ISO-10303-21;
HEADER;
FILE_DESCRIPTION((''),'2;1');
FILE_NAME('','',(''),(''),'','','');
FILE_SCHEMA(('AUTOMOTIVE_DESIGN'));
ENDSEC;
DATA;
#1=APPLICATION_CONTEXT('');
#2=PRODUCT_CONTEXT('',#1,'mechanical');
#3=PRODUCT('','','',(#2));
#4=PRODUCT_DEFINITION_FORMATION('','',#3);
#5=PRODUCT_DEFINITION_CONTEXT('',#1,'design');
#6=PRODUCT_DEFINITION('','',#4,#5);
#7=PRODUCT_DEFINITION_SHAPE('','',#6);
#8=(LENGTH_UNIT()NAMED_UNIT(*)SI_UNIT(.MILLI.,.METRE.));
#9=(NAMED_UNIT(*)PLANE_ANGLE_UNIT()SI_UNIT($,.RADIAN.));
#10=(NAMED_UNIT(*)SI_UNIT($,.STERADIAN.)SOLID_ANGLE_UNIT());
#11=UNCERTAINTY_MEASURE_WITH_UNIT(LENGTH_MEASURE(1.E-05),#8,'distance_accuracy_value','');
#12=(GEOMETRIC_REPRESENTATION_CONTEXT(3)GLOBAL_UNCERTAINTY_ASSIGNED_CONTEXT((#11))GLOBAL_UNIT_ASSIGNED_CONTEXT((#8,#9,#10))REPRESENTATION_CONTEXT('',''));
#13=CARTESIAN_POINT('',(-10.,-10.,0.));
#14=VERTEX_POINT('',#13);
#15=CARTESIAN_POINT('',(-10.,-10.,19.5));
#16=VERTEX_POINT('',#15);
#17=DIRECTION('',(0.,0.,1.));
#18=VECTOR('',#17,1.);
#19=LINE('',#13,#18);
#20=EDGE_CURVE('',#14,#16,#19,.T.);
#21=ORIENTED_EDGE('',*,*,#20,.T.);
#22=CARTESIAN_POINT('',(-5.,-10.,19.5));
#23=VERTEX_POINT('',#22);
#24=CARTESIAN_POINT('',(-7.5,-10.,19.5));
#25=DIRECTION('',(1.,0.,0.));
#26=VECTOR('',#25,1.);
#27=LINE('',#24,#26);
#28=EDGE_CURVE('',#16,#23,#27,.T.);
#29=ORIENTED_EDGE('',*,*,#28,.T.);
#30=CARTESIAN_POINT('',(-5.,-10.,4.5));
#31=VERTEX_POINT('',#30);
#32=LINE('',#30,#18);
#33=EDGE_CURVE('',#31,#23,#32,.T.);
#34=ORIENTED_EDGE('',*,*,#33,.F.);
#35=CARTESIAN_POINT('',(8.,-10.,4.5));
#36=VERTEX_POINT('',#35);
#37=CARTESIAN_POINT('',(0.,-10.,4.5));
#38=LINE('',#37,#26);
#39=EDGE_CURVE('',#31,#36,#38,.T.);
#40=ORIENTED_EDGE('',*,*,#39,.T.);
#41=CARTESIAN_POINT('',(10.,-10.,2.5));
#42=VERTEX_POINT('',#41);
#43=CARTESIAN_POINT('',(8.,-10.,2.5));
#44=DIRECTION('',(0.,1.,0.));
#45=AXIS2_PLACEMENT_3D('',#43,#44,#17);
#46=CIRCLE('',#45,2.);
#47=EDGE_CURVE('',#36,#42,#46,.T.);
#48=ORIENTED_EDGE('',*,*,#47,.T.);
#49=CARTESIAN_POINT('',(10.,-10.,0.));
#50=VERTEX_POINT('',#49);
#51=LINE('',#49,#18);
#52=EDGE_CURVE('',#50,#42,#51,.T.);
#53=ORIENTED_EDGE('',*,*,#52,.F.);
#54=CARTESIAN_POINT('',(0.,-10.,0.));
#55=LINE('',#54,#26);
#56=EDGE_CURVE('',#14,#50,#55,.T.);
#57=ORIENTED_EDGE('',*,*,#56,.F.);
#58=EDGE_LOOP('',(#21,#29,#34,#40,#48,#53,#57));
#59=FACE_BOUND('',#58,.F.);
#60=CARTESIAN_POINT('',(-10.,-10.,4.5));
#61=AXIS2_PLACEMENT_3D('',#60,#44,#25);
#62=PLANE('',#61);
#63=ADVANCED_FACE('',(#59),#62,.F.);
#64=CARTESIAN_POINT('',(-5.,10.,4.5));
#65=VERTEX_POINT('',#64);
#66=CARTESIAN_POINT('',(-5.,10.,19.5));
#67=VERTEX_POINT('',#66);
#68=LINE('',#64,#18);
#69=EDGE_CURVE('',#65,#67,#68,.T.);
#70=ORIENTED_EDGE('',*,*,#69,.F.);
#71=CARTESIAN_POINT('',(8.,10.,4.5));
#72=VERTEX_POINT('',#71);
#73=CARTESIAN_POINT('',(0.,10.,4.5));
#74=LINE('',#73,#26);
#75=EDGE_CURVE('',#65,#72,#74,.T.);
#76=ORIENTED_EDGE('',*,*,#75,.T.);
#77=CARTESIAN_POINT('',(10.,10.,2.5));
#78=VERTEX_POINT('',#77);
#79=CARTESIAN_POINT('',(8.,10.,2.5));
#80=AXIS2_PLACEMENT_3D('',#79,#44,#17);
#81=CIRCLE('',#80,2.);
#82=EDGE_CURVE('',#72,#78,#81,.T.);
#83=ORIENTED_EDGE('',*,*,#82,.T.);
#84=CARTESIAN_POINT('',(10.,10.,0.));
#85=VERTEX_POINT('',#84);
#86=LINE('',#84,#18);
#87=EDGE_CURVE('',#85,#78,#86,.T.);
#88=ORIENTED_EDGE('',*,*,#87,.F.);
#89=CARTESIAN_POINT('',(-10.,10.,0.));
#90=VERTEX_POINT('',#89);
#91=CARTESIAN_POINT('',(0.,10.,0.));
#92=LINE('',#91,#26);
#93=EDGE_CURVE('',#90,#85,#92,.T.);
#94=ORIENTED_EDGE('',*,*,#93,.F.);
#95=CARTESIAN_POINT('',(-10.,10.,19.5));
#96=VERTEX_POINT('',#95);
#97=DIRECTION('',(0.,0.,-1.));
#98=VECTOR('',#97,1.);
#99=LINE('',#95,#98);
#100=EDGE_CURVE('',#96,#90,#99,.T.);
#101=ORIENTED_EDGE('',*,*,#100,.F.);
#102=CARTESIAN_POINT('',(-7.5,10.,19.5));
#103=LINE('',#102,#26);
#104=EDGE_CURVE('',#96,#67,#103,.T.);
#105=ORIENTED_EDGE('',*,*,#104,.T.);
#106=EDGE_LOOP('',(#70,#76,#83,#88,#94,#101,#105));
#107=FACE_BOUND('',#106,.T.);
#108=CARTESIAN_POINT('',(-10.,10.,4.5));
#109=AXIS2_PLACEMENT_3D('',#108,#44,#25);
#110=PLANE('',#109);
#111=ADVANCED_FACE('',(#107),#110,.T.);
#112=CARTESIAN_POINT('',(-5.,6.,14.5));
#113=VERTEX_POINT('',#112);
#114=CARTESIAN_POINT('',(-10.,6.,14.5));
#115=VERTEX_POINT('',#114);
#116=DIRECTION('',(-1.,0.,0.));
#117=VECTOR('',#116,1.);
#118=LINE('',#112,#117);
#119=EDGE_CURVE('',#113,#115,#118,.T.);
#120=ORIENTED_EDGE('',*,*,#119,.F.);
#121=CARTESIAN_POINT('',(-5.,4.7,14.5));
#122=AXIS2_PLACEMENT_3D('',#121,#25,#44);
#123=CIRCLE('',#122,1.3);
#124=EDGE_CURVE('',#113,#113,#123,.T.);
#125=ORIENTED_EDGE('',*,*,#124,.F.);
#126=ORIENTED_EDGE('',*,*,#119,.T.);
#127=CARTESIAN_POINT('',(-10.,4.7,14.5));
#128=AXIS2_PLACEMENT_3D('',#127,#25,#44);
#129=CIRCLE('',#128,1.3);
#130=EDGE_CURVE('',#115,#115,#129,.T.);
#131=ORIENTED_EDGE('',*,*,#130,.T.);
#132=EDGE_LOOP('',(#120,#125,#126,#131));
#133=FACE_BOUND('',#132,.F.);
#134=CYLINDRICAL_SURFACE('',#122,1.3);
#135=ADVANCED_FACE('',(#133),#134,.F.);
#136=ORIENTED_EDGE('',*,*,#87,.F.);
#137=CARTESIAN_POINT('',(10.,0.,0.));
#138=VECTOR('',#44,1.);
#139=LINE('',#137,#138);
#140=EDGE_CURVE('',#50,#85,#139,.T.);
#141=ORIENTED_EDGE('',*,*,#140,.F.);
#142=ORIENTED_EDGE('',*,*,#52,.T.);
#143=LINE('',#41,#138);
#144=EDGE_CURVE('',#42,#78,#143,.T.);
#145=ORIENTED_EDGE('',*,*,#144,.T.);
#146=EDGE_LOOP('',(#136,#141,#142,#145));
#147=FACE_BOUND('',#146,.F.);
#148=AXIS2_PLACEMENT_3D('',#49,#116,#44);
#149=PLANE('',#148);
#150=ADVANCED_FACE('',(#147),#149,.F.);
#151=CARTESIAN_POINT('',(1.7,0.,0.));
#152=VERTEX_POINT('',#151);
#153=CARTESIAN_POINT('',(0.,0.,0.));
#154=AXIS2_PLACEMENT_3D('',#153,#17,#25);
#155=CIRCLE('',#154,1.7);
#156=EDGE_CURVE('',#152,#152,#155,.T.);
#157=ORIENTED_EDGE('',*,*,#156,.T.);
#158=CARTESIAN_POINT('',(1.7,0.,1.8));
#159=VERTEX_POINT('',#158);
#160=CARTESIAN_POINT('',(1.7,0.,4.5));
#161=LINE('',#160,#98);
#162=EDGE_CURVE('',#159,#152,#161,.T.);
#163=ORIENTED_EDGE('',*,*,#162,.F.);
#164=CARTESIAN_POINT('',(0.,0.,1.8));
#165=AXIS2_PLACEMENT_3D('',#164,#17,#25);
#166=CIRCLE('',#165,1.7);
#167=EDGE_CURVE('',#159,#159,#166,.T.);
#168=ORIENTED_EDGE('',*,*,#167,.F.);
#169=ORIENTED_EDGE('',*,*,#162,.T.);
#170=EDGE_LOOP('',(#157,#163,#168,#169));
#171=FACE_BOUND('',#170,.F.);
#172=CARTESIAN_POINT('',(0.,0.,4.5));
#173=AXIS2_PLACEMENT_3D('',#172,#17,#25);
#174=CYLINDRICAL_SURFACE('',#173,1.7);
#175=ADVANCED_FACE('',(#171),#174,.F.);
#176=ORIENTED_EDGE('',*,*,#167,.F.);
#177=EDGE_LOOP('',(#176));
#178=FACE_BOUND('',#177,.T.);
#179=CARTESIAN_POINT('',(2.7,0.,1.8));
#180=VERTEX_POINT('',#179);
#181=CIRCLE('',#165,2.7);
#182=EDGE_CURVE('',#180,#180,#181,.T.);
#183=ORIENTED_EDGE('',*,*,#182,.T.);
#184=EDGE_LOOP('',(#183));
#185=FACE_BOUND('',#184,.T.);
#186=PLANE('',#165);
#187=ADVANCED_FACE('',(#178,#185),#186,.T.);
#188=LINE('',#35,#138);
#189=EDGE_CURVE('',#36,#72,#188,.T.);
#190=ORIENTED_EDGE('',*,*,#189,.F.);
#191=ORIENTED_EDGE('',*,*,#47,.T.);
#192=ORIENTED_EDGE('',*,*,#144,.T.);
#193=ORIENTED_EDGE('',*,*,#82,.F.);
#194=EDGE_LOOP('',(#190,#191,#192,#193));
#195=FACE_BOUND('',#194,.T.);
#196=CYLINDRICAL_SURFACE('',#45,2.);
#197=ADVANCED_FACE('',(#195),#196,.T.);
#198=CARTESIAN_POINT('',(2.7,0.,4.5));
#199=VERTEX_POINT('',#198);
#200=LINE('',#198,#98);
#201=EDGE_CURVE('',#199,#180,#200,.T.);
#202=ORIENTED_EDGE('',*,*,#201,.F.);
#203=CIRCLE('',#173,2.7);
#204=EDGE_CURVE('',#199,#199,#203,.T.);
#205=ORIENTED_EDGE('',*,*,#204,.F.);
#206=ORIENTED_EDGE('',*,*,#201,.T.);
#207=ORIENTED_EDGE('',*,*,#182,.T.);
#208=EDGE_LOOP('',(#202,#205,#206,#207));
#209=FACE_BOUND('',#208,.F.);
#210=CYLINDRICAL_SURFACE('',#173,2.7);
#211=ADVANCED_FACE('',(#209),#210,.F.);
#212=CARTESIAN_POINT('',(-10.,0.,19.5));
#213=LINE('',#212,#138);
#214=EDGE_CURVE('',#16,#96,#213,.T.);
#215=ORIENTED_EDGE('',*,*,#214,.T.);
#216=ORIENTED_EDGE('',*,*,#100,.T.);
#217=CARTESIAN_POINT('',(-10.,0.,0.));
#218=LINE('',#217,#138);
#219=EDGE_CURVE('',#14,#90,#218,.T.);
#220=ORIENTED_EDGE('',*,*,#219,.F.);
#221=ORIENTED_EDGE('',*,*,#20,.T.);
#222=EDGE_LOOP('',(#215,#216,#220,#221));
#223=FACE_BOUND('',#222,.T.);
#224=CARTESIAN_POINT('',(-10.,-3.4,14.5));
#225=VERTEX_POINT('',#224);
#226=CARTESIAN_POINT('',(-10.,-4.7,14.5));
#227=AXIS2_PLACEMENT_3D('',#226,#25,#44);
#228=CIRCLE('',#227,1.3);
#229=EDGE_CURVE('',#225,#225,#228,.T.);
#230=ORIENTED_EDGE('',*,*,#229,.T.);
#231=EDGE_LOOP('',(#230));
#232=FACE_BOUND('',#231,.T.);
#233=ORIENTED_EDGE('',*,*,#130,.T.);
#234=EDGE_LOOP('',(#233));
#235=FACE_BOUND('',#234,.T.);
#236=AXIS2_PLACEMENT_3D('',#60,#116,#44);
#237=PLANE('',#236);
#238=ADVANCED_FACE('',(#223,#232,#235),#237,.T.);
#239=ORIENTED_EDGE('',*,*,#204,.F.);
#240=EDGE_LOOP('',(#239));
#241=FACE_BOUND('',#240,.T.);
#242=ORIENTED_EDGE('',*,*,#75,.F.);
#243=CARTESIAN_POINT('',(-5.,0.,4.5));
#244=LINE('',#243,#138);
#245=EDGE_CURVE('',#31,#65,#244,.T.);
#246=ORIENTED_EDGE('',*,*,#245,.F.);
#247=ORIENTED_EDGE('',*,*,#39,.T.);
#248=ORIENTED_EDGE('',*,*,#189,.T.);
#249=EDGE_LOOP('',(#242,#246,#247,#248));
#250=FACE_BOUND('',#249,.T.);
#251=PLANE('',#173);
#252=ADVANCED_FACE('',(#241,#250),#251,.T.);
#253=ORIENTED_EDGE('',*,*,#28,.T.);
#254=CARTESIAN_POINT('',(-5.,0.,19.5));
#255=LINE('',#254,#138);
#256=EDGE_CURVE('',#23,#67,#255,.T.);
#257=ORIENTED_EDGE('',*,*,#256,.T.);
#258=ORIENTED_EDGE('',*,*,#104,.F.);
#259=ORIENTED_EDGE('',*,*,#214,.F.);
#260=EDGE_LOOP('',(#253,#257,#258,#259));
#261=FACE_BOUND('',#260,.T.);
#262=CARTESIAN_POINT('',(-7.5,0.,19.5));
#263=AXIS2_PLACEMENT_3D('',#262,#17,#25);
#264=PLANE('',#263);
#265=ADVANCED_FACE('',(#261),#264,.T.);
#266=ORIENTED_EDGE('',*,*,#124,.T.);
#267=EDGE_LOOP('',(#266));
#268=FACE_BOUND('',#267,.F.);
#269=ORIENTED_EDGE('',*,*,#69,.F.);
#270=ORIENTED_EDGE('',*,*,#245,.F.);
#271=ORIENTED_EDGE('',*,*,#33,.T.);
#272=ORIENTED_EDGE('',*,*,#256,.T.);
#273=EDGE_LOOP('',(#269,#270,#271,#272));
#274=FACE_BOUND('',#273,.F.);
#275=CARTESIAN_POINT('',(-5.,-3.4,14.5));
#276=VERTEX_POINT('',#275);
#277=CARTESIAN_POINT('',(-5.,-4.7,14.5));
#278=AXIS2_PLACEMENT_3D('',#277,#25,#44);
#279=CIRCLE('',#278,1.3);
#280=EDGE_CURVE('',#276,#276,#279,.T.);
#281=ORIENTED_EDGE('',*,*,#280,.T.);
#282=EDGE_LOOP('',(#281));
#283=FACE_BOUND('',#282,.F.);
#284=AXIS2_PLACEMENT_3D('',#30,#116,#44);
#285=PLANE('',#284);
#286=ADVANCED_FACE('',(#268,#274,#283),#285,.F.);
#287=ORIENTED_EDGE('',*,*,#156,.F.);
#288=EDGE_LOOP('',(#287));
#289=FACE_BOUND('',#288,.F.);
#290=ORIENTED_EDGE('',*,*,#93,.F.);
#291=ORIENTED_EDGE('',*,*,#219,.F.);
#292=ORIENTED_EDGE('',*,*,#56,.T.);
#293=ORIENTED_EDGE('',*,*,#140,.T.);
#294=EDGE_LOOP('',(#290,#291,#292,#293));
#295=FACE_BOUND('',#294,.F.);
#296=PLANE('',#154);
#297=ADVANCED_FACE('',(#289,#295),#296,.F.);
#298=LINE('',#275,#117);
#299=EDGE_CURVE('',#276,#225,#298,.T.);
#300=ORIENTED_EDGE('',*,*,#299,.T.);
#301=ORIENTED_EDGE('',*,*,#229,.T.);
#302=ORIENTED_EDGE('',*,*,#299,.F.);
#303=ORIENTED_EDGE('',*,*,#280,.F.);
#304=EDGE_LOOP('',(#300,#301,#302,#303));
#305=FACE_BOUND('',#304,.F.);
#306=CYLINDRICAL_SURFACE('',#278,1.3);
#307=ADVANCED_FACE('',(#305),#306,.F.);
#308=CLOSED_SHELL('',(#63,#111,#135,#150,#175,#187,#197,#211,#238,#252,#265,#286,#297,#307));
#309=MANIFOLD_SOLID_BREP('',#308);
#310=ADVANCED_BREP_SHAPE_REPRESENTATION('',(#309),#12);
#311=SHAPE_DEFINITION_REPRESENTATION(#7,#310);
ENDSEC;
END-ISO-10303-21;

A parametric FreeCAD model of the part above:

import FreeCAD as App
import Part
import Sketcher
Q = App.Units.Quantity


def edges_at(feature, points):
    """Names of the edges that pass closest to the given points."""
    edges = feature.Shape.Edges
    near = lambda p: min(range(len(edges)), key=lambda i: edges[i].distToShape(Part.Vertex(*p))[0])
    return sorted({f"Edge{near(p) + 1}" for p in points})

doc = App.newDocument("Part")
body = doc.addObject("PartDesign::Body", "Body")

# Sketch on XY plane
sketch1 = body.newObject("Sketcher::SketchObject", "Sketch")
sketch1.AttachmentSupport = (doc.getObject("XY_Plane"), [""])
sketch1.MapMode = "FlatFace"
sketch1.addGeometry([
    Part.LineSegment(App.Vector(-10, 10, 0), App.Vector(-10, -10, 0)),
    Part.LineSegment(App.Vector(-10, -10, 0), App.Vector(10, -10, 0)),
    Part.LineSegment(App.Vector(10, -10, 0), App.Vector(10, 10, 0)),
    Part.LineSegment(App.Vector(10, 10, 0), App.Vector(-10, 10, 0)),
], False)
sketch1.addConstraint([
    Sketcher.Constraint("Coincident", 0, 2, 1, 1),
    Sketcher.Constraint("Coincident", 1, 2, 2, 1),
    Sketcher.Constraint("Coincident", 2, 2, 3, 1),
    Sketcher.Constraint("Coincident", 3, 2, 0, 1),
    Sketcher.Constraint("Vertical", 0),
    Sketcher.Constraint("Horizontal", 1),
    Sketcher.Constraint("Vertical", 2),
    Sketcher.Constraint("Horizontal", 3),
    Sketcher.Constraint("Symmetric", 0, 2, 2, 2, -1, 1),
    Sketcher.Constraint("Equal", 3, 0),
    Sketcher.Constraint("DistanceX", 1, 1, 1, 2, Q("20 mm")),
])
pad1 = body.newObject("PartDesign::Pad", "Pad")
pad1.Profile = sketch1
pad1.Length = 4.5

# Sketch on XY plane
sketch2 = body.newObject("Sketcher::SketchObject", "Sketch001")
sketch2.AttachmentSupport = (doc.getObject("XY_Plane"), [""])
sketch2.MapMode = "FlatFace"
sketch2.AttachmentOffset = App.Placement(App.Vector(0, 0, 4.5), App.Rotation())
sketch2.addGeometry(Part.Circle(App.Vector(0, 0, 0), App.Vector(0, 0, 1), 1.7), False)
sketch2.addConstraint([
    Sketcher.Constraint("Coincident", 0, 3, -1, 1),
    Sketcher.Constraint("Diameter", 0, Q("3.4 mm")),
])
pocket1 = body.newObject("PartDesign::Pocket", "Pocket")
pocket1.Profile = sketch2
pocket1.Length = 5

# Sketch on XY plane
sketch3 = body.newObject("Sketcher::SketchObject", "Sketch002")
sketch3.AttachmentSupport = (doc.getObject("XY_Plane"), [""])
sketch3.MapMode = "FlatFace"
sketch3.AttachmentOffset = App.Placement(App.Vector(0, 0, 4.5), App.Rotation())
sketch3.addGeometry(Part.Circle(App.Vector(0, 0, 0), App.Vector(0, 0, 1), 2.7), False)
sketch3.addConstraint([
    Sketcher.Constraint("Coincident", 0, 3, -1, 1),
    Sketcher.Constraint("Diameter", 0, Q("5.4 mm")),
])
pocket2 = body.newObject("PartDesign::Pocket", "Pocket001")
pocket2.Profile = sketch3
pocket2.Length = 2.7

# Sketch on XY plane
sketch4 = body.newObject("Sketcher::SketchObject", "Sketch003")
sketch4.AttachmentSupport = (doc.getObject("XY_Plane"), [""])
sketch4.MapMode = "FlatFace"
sketch4.AttachmentOffset = App.Placement(App.Vector(0, 0, 4.5), App.Rotation())
sketch4.addGeometry([
    Part.LineSegment(App.Vector(-10, 10, 0), App.Vector(-10, -10, 0)),
    Part.LineSegment(App.Vector(-10, -10, 0), App.Vector(-5, -10, 0)),
    Part.LineSegment(App.Vector(-5, -10, 0), App.Vector(-5, 10, 0)),
    Part.LineSegment(App.Vector(-5, 10, 0), App.Vector(-10, 10, 0)),
], False)
sketch4.addConstraint([
    Sketcher.Constraint("Coincident", 0, 2, 1, 1),
    Sketcher.Constraint("Coincident", 1, 2, 2, 1),
    Sketcher.Constraint("Coincident", 2, 2, 3, 1),
    Sketcher.Constraint("Coincident", 3, 2, 0, 1),
    Sketcher.Constraint("Vertical", 0),
    Sketcher.Constraint("Horizontal", 1),
    Sketcher.Constraint("Vertical", 2),
    Sketcher.Constraint("Horizontal", 3),
    Sketcher.Constraint("DistanceX", 1, 1, 1, 2, Q("5 mm")),
    Sketcher.Constraint("DistanceY", 0, 2, 0, 1, Q("20 mm")),
    Sketcher.Constraint("DistanceX", 0, 2, -1, 1, Q("10 mm")),
    Sketcher.Constraint("DistanceY", 0, 2, -1, 1, Q("10 mm")),
])
pad2 = body.newObject("PartDesign::Pad", "Pad001")
pad2.Profile = sketch4
pad2.Length = 15

# Sketch on YZ plane
sketch5 = body.newObject("Sketcher::SketchObject", "Sketch004")
sketch5.AttachmentSupport = (doc.getObject("YZ_Plane"), [""])
sketch5.MapMode = "FlatFace"
sketch5.AttachmentOffset = App.Placement(App.Vector(0, 0, -5), App.Rotation())
sketch5.addGeometry([
    Part.Circle(App.Vector(-4.7, 14.5, 0), App.Vector(0, 0, 1), 1.3),
    Part.Circle(App.Vector(4.7, 14.5, 0), App.Vector(0, 0, 1), 1.3),
], False)
sketch5.addConstraint([
    Sketcher.Constraint("Equal", 0, 1),
    Sketcher.Constraint("Symmetric", 0, 3, 1, 3, -2),
    Sketcher.Constraint("Diameter", 0, Q("2.6 mm")),
    Sketcher.Constraint("DistanceX", 0, 3, -1, 1, Q("4.7 mm")),
    Sketcher.Constraint("DistanceY", -1, 1, 0, 3, Q("14.5 mm")),
])
pocket3 = body.newObject("PartDesign::Pocket", "Pocket002")
pocket3.Profile = sketch5
pocket3.Length = 5
doc.recompute()

fillet = body.newObject("PartDesign::Fillet", "Fillet")
fillet.Base = (pocket3, edges_at(pocket3, [(10, 0, 4.5)]))
fillet.Radius = 2

doc.recompute()
